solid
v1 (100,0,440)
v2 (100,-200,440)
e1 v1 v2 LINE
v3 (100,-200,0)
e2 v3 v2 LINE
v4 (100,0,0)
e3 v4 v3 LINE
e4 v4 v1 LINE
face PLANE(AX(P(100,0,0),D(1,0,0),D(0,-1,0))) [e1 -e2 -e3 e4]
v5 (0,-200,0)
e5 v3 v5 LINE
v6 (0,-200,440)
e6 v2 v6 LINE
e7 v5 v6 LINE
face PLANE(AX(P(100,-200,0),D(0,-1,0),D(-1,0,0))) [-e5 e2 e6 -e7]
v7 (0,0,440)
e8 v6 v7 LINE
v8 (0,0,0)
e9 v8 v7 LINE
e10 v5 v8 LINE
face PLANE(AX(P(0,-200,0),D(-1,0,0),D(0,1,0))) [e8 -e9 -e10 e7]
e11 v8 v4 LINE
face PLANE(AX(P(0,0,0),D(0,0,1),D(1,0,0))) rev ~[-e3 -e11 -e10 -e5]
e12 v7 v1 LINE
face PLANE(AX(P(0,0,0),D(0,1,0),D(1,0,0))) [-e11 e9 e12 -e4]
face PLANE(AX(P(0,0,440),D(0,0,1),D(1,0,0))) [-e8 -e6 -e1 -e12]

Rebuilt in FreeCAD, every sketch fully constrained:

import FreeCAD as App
import Part
import Sketcher

V = App.Vector


def add_polygon(sketch, points):
    """Adds a closed chain of lines whose ends are joined by coincident constraints."""
    first, n = sketch.GeometryCount, len(points)
    for a, b in zip(points, points[1:] + points[:1]):
        sketch.addGeometry(Part.LineSegment(App.Vector(*a, 0), App.Vector(*b, 0)), False)
    for i in range(n):
        sketch.addConstraint(Sketcher.Constraint("Coincident", first + i, 2, first + (i + 1) % n, 1))

doc = App.newDocument("Part")
body = doc.addObject("PartDesign::Body", "Body")

# Sketch on XY plane
sketch1 = doc.addObject("Sketcher::SketchObject", "Sketch")
body.addObject(sketch1)
sketch1.AttachmentSupport = (doc.XY_Plane, [""])
sketch1.MapMode = "FlatFace"
add_polygon(sketch1, [(100, 0), (0, 0), (0, -200), (100, -200)])  # lines 0-3
sketch1.addConstraint(Sketcher.Constraint("Horizontal", 0))
sketch1.addConstraint(Sketcher.Constraint("Vertical", 1))
sketch1.addConstraint(Sketcher.Constraint("Horizontal", 2))
sketch1.addConstraint(Sketcher.Constraint("Vertical", 3))
sketch1.addConstraint(Sketcher.Constraint("Coincident", 0, 2, -1, 1))
sketch1.addConstraint(Sketcher.Constraint("DistanceX", 0, 2, 0, 1, 100.0))
sketch1.addConstraint(Sketcher.Constraint("DistanceY", 1, 2, 1, 1, 200.0))
pad1 = doc.addObject("PartDesign::Pad", "Pad")
body.addObject(pad1)
pad1.Profile = sketch1
pad1.Length = 440

doc.recompute()
